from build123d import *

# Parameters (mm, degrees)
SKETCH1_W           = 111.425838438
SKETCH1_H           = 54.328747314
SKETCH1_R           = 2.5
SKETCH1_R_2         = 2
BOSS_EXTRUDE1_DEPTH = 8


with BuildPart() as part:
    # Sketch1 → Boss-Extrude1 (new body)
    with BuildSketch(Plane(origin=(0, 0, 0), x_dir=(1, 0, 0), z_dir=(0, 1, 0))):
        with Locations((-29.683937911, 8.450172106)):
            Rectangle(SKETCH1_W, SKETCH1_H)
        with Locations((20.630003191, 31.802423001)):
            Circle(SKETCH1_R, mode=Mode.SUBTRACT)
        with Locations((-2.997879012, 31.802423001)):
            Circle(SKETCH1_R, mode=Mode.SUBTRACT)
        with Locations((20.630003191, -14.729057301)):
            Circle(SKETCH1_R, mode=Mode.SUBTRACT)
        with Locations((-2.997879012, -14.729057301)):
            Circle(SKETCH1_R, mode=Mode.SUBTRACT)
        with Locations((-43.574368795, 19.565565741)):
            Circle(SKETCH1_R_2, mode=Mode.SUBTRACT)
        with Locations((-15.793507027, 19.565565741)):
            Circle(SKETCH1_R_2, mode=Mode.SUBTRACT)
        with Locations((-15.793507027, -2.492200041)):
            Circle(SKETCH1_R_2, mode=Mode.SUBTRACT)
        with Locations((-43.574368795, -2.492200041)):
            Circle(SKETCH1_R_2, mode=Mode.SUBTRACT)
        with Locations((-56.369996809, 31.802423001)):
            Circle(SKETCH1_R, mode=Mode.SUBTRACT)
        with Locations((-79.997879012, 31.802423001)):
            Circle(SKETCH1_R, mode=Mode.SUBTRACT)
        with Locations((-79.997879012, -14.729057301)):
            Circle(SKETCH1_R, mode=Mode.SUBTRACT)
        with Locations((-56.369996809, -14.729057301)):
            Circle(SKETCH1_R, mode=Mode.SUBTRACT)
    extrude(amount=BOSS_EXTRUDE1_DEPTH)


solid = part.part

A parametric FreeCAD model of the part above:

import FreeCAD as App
import Part
import Sketcher

V = App.Vector
Q = App.Units.Quantity

doc = App.newDocument("Part")
body = doc.addObject("PartDesign::Body", "Body")

# Sketch on XZ plane
sketch1 = doc.addObject("Sketcher::SketchObject", "Sketch")
body.addObject(sketch1)
sketch1.AttachmentSupport = (doc.XZ_Plane, [""])
sketch1.MapMode = "FlatFace"
sketch1.addGeometry(Part.LineSegment(V(-85.4, -35.6, 0), V(-85.4, 18.7, 0)), False)
sketch1.addGeometry(Part.LineSegment(V(-85.4, 18.7, 0), V(26, 18.7, 0)), False)
sketch1.addGeometry(Part.LineSegment(V(26, 18.7, 0), V(26, -35.6, 0)), False)
sketch1.addGeometry(Part.LineSegment(V(26, -35.6, 0), V(-85.4, -35.6, 0)), False)
sketch1.addGeometry(Part.Circle(V(-80, 14.7, 0), V(0, 0, 1), 2.5), False)
sketch1.addGeometry(Part.Circle(V(-56.4, 14.7, 0), V(0, 0, 1), 2.5), False)
sketch1.addGeometry(Part.Circle(V(-43.6, 2.5, 0), V(0, 0, 1), 2), False)
sketch1.addGeometry(Part.Circle(V(-3, 14.7, 0), V(0, 0, 1), 2.5), False)
sketch1.addGeometry(Part.Circle(V(20.6, 14.7, 0), V(0, 0, 1), 2.5), False)
sketch1.addGeometry(Part.Circle(V(-15.8, 2.5, 0), V(0, 0, 1), 2), False)
sketch1.addGeometry(Part.Circle(V(-43.6, -19.6, 0), V(0, 0, 1), 2), False)
sketch1.addGeometry(Part.Circle(V(-80, -31.8, 0), V(0, 0, 1), 2.5), False)
sketch1.addGeometry(Part.Circle(V(-56.4, -31.8, 0), V(0, 0, 1), 2.5), False)
sketch1.addGeometry(Part.Circle(V(-15.8, -19.6, 0), V(0, 0, 1), 2), False)
sketch1.addGeometry(Part.Circle(V(-3, -31.8, 0), V(0, 0, 1), 2.5), False)
sketch1.addGeometry(Part.Circle(V(20.6, -31.8, 0), V(0, 0, 1), 2.5), False)
sketch1.addConstraint(Sketcher.Constraint("Coincident", 0, 2, 1, 1))
sketch1.addConstraint(Sketcher.Constraint("Coincident", 1, 2, 2, 1))
sketch1.addConstraint(Sketcher.Constraint("Coincident", 2, 2, 3, 1))
sketch1.addConstraint(Sketcher.Constraint("Coincident", 3, 2, 0, 1))
sketch1.addConstraint(Sketcher.Constraint("Vertical", 0))
sketch1.addConstraint(Sketcher.Constraint("Horizontal", 1))
sketch1.addConstraint(Sketcher.Constraint("Vertical", 2))
sketch1.addConstraint(Sketcher.Constraint("Horizontal", 3))
sketch1.addConstraint(Sketcher.Constraint("Equal", 4, 5))
sketch1.addConstraint(Sketcher.Constraint("Equal", 5, 7))
sketch1.addConstraint(Sketcher.Constraint("Equal", 7, 8))
sketch1.addConstraint(Sketcher.Constraint("Equal", 6, 9))
sketch1.addConstraint(Sketcher.Constraint("Equal", 9, 10))
sketch1.addConstraint(Sketcher.Constraint("Equal", 8, 11))
sketch1.addConstraint(Sketcher.Constraint("Equal", 11, 12))
sketch1.addConstraint(Sketcher.Constraint("Equal", 10, 13))
sketch1.addConstraint(Sketcher.Constraint("Equal", 12, 14))
sketch1.addConstraint(Sketcher.Constraint("Equal", 14, 15))
sketch1.addConstraint(Sketcher.Constraint("Horizontal", 4, 3, 5, 3))
sketch1.addConstraint(Sketcher.Constraint("Horizontal", 5, 3, 7, 3))
sketch1.addConstraint(Sketcher.Constraint("Horizontal", 7, 3, 8, 3))
sketch1.addConstraint(Sketcher.Constraint("Horizontal", 6, 3, 9, 3))
sketch1.addConstraint(Sketcher.Constraint("Horizontal", 11, 3, 12, 3))
sketch1.addConstraint(Sketcher.Constraint("Horizontal", 10, 3, 13, 3))
sketch1.addConstraint(Sketcher.Constraint("Horizontal", 12, 3, 14, 3))
sketch1.addConstraint(Sketcher.Constraint("Horizontal", 14, 3, 15, 3))
sketch1.addConstraint(Sketcher.Constraint("Vertical", 6, 3, 10, 3))
sketch1.addConstraint(Sketcher.Constraint("Vertical", 4, 3, 11, 3))
sketch1.addConstraint(Sketcher.Constraint("Vertical", 5, 3, 12, 3))
sketch1.addConstraint(Sketcher.Constraint("Vertical", 9, 3, 13, 3))
sketch1.addConstraint(Sketcher.Constraint("Vertical", 7, 3, 14, 3))
sketch1.addConstraint(Sketcher.Constraint("Vertical", 8, 3, 15, 3))
sketch1.addConstraint(Sketcher.Constraint("Diameter", 4, Q("5 mm")))
sketch1.addConstraint(Sketcher.Constraint("Diameter", 6, Q("4 mm")))
sketch1.addConstraint(Sketcher.Constraint("DistanceX", 4, 3, 7, 3, Q("77 mm")))
sketch1.addConstraint(Sketcher.Constraint("DistanceX", 5, 3, 8, 3, Q("77 mm")))
sketch1.addConstraint(Sketcher.Constraint("DistanceY", 6, 3, 0, 2, Q("16.222002 mm")))
sketch1.addConstraint(Sketcher.Constraint("DistanceX", 1, 1, 1, 2, Q("111.425838 mm")))
sketch1.addConstraint(Sketcher.Constraint("DistanceY", -1, 1, 6, 3, Q("2.4922 mm")))
sketch1.addConstraint(Sketcher.Constraint("DistanceY", 0, 1, 0, 2, Q("54.328747 mm")))
sketch1.addConstraint(Sketcher.Constraint("DistanceX", 4, 3, -1, 1, Q("79.997879 mm")))
sketch1.addConstraint(Sketcher.Constraint("DistanceX", 6, 3, -1, 1, Q("43.574369 mm")))
sketch1.addConstraint(Sketcher.Constraint("DistanceX", -1, 1, 1, 2, Q("26.028981 mm")))
sketch1.addConstraint(Sketcher.Constraint("DistanceX", 5, 3, 6, 3, Q("12.795628 mm")))
sketch1.addConstraint(Sketcher.Constraint("DistanceX", 9, 3, 7, 3, Q("12.795628 mm")))
sketch1.addConstraint(Sketcher.Constraint("DistanceY", 11, 3, 4, 3, Q("46.53148 mm")))
sketch1.addConstraint(Sketcher.Constraint("DistanceY", 2, 2, 13, 3, Q("16.04898 mm")))
sketch1.addConstraint(Sketcher.Constraint("DistanceY", -1, 1, 4, 3, Q("14.729057 mm")))
pad1 = doc.addObject("PartDesign::Pad", "Pad")
body.addObject(pad1)
pad1.Profile = sketch1
pad1.Length = 8
pad1.Reversed = True

doc.recompute()
